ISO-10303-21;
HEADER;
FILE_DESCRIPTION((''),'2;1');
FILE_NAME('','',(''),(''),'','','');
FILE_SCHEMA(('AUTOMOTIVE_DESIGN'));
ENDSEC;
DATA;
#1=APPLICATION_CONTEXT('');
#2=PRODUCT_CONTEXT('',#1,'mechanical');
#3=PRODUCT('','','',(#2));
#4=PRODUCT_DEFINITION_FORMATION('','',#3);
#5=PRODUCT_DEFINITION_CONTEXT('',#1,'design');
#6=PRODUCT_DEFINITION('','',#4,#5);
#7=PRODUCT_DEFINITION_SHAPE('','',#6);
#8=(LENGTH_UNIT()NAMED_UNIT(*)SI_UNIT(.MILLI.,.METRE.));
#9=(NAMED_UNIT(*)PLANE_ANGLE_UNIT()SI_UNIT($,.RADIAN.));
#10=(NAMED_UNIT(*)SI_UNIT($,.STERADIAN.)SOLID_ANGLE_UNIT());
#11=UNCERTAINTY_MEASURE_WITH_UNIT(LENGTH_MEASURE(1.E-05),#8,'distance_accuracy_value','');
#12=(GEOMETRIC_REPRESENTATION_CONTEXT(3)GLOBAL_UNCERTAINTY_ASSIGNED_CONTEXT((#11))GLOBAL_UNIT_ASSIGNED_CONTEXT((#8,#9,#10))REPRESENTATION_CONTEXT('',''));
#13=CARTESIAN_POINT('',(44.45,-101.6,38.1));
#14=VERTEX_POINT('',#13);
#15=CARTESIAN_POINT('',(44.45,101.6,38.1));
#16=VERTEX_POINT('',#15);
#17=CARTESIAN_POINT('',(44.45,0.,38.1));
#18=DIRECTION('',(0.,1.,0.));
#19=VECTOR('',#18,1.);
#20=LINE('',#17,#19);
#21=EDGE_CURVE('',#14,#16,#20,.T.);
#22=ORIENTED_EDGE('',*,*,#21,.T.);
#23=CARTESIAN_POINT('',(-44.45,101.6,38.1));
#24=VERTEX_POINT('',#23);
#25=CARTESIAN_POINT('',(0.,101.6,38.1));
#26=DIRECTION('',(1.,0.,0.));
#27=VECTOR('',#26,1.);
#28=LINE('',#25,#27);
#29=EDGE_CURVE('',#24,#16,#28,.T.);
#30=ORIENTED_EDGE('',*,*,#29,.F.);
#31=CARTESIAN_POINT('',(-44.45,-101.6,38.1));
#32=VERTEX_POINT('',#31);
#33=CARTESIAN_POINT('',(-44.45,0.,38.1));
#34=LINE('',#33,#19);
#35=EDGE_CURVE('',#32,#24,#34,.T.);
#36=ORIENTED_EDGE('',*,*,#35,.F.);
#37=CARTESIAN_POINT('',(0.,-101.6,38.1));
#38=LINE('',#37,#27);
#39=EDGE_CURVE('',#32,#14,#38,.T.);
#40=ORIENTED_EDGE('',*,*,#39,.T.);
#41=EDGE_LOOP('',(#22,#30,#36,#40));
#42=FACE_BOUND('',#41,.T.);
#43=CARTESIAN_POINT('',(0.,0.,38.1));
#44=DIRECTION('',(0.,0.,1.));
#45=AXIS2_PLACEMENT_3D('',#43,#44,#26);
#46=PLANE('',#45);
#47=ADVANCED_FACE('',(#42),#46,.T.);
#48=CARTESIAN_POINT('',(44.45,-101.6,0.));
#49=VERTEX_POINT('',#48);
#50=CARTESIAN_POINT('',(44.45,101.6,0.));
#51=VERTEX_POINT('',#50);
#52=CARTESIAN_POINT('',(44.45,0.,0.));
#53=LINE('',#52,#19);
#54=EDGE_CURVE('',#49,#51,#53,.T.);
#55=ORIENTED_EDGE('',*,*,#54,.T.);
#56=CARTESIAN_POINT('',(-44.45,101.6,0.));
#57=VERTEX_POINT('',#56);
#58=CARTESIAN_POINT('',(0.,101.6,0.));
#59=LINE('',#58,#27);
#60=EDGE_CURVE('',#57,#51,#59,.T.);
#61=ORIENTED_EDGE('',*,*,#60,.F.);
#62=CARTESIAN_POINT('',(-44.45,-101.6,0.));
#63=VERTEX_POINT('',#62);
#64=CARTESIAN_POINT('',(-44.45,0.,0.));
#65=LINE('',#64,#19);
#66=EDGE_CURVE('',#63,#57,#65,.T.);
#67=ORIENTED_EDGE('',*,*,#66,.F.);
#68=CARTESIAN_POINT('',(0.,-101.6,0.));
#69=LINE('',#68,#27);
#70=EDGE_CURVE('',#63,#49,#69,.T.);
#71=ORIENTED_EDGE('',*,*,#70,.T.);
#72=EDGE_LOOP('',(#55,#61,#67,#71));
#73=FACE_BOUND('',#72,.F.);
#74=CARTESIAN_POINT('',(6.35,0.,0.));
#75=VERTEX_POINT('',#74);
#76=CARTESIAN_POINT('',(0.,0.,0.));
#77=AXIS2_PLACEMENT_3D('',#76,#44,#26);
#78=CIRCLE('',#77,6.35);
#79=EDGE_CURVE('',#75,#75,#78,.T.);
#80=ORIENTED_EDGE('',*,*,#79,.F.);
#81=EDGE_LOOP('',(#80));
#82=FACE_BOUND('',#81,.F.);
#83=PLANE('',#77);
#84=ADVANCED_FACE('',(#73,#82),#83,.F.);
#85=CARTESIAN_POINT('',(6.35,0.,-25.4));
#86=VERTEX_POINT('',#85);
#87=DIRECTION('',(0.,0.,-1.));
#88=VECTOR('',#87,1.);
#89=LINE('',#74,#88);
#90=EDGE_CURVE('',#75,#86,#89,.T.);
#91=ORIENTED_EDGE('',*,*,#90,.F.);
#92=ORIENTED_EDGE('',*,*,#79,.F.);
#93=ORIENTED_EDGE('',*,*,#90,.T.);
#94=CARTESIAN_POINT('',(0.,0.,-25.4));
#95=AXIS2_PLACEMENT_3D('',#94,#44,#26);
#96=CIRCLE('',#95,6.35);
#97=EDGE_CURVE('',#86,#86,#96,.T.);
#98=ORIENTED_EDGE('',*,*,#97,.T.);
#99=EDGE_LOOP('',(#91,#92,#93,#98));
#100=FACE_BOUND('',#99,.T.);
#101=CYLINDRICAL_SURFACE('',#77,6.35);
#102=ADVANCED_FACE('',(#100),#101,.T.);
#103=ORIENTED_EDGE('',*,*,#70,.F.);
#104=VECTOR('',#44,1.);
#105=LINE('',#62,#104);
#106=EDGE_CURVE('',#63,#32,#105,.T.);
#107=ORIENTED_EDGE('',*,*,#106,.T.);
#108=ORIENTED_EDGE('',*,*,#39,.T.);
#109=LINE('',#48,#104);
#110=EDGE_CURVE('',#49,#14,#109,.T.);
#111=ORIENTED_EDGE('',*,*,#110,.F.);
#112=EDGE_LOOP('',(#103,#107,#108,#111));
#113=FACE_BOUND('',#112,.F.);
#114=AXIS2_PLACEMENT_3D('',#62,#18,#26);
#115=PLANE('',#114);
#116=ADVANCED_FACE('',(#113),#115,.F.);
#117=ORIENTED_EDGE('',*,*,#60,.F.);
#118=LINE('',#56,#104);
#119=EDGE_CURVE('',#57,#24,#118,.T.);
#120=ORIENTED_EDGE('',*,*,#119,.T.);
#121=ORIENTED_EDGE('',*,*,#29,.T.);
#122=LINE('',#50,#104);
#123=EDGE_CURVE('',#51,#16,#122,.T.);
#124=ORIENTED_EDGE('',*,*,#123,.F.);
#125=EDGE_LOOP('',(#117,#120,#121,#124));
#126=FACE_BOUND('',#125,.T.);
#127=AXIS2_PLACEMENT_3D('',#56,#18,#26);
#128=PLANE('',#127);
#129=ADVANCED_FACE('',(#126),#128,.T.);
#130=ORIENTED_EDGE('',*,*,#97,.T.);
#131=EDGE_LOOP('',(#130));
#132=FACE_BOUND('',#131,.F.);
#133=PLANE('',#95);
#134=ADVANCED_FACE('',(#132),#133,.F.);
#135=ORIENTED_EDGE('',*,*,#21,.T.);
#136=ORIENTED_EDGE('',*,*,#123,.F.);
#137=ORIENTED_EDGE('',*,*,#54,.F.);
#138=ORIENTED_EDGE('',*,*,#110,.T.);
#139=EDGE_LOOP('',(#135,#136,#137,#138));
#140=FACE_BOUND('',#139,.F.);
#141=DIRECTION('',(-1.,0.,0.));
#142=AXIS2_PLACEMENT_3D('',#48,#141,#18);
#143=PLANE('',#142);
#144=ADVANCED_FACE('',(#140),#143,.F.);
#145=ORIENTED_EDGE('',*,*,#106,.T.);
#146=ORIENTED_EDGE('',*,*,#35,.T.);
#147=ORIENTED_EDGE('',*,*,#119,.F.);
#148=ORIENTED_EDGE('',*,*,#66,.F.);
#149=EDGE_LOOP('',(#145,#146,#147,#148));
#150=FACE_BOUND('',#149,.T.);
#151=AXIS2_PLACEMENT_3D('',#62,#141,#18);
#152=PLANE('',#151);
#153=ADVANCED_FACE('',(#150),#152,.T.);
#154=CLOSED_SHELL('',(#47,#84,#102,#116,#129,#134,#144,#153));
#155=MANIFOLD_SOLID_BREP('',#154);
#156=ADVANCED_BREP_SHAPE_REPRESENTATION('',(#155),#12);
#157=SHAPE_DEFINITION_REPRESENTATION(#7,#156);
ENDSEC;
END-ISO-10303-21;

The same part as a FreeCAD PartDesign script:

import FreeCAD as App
import Part
import Sketcher

V = App.Vector
Q = App.Units.Quantity


def add_polygon(sketch, points):
    """Adds a closed chain of lines whose ends are joined by coincident constraints."""
    first, n = sketch.GeometryCount, len(points)
    for a, b in zip(points, points[1:] + points[:1]):
        sketch.addGeometry(Part.LineSegment(App.Vector(*a, 0), App.Vector(*b, 0)), False)
    for i in range(n):
        sketch.addConstraint(Sketcher.Constraint("Coincident", first + i, 2, first + (i + 1) % n, 1))

doc = App.newDocument("Part")
body = doc.addObject("PartDesign::Body", "Body")

sketch1 = body.newObject("Sketcher::SketchObject", "Sketch")
sketch1.AttachmentSupport = (doc.getObject("XY_Plane"), [""])
sketch1.MapMode = "FlatFace"
add_polygon(sketch1, [(-44, 102), (-44, -102), (44, -102), (44, 102)])
sketch1.addConstraint([
    Sketcher.Constraint("Vertical", 0),
    Sketcher.Constraint("Horizontal", 1),
    Sketcher.Constraint("Vertical", 2),
    Sketcher.Constraint("Horizontal", 3),
    Sketcher.Constraint("Symmetric", 0, 2, 2, 2, -1, 1),
    Sketcher.Constraint("DistanceY", 0, 2, 0, 1, Q("8 in")),
    Sketcher.Constraint("DistanceX", 1, 1, 1, 2, Q("3.5 in")),
])
pad1 = body.newObject("PartDesign::Pad", "Pad")
pad1.Profile = sketch1
pad1.Length = Q("1.5 in")

sketch2 = body.newObject("Sketcher::SketchObject", "Sketch001")
sketch2.AttachmentSupport = (doc.getObject("XY_Plane"), [""])
sketch2.MapMode = "FlatFace"
sketch2.addGeometry(Part.Circle(V(0, 0, 0), V(0, 0, 1), 6), False)
sketch2.addConstraint([
    Sketcher.Constraint("Coincident", 0, 3, -1, 1),
    Sketcher.Constraint("Diameter", 0, Q("0.5 in")),
])
pad2 = body.newObject("PartDesign::Pad", "Pad001")
pad2.Profile = sketch2
pad2.Length = Q("1 in")
pad2.Reversed = True

doc.recompute()
